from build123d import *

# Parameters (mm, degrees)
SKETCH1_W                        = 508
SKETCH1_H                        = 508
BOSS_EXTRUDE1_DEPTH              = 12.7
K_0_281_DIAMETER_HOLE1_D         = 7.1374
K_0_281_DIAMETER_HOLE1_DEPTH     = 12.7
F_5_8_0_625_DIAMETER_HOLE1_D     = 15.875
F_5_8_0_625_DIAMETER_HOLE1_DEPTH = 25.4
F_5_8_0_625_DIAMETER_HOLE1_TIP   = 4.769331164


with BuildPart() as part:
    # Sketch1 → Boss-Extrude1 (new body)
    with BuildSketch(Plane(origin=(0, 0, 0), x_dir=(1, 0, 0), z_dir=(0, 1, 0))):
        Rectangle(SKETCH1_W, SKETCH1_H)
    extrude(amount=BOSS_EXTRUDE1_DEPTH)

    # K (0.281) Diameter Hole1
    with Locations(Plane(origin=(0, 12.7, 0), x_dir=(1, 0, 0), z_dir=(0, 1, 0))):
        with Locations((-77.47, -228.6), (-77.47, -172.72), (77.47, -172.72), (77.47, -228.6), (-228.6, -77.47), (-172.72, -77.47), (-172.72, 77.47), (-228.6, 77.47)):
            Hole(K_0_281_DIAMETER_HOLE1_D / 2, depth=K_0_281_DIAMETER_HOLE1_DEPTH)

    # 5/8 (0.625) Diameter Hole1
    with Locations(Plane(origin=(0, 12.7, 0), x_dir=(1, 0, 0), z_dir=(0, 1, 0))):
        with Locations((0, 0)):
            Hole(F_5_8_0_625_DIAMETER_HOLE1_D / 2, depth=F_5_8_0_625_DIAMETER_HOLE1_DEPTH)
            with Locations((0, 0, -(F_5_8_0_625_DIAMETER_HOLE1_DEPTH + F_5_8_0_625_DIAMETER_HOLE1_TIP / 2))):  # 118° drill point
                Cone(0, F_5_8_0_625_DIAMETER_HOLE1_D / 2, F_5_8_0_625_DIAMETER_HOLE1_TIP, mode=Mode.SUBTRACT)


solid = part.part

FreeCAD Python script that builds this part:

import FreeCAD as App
import Part
import Sketcher
Q = App.Units.Quantity

doc = App.newDocument("Part")
body = doc.addObject("PartDesign::Body", "Body")

# Sketch on XZ plane
sketch1 = body.newObject("Sketcher::SketchObject", "Sketch")
sketch1.AttachmentSupport = (doc.getObject("XZ_Plane"), [""])
sketch1.MapMode = "FlatFace"
sketch1.addGeometry(Part.LineSegment(App.Vector(-254, -254, 0), App.Vector(-254, 254, 0)), False)
sketch1.addGeometry(Part.LineSegment(App.Vector(-254, 254, 0), App.Vector(254, 254, 0)), False)
sketch1.addGeometry(Part.LineSegment(App.Vector(254, 254, 0), App.Vector(254, -254, 0)), False)
sketch1.addGeometry(Part.LineSegment(App.Vector(254, -254, 0), App.Vector(-254, -254, 0)), False)
sketch1.addConstraint(Sketcher.Constraint("Coincident", 0, 2, 1, 1))
sketch1.addConstraint(Sketcher.Constraint("Coincident", 1, 2, 2, 1))
sketch1.addConstraint(Sketcher.Constraint("Coincident", 2, 2, 3, 1))
sketch1.addConstraint(Sketcher.Constraint("Coincident", 3, 2, 0, 1))
sketch1.addConstraint(Sketcher.Constraint("Vertical", 0))
sketch1.addConstraint(Sketcher.Constraint("Horizontal", 1))
sketch1.addConstraint(Sketcher.Constraint("Vertical", 2))
sketch1.addConstraint(Sketcher.Constraint("Horizontal", 3))
sketch1.addConstraint(Sketcher.Constraint("Symmetric", 0, 2, 2, 2, -1, 1))
sketch1.addConstraint(Sketcher.Constraint("Equal", 3, 0))
sketch1.addConstraint(Sketcher.Constraint("DistanceX", 1, 1, 1, 2, Q("20 in")))
pad1 = body.newObject("PartDesign::Pad", "Pad")
pad1.Profile = sketch1
pad1.Length = Q("0.5 in")
pad1.Reversed = True

# Sketch on XZ plane
sketch2 = body.newObject("Sketcher::SketchObject", "Sketch001")
sketch2.AttachmentSupport = (doc.getObject("XZ_Plane"), [""])
sketch2.MapMode = "FlatFace"
sketch2.AttachmentOffset = App.Placement(App.Vector(0, 0, -0.5 * 25.4), App.Rotation())
sketch2.addGeometry(Part.Circle(App.Vector(-77.5, 228.6, 0), App.Vector(0, 0, 1), 3.6), False)
sketch2.addGeometry(Part.Circle(App.Vector(-77.5, 172.7, 0), App.Vector(0, 0, 1), 3.6), False)
sketch2.addGeometry(Part.Circle(App.Vector(77.5, 172.7, 0), App.Vector(0, 0, 1), 3.6), False)
sketch2.addGeometry(Part.Circle(App.Vector(77.5, 228.6, 0), App.Vector(0, 0, 1), 3.6), False)
sketch2.addGeometry(Part.Circle(App.Vector(-228.6, 77.5, 0), App.Vector(0, 0, 1), 3.6), False)
sketch2.addGeometry(Part.Circle(App.Vector(-172.7, 77.5, 0), App.Vector(0, 0, 1), 3.6), False)
sketch2.addGeometry(Part.Circle(App.Vector(-172.7, -77.5, 0), App.Vector(0, 0, 1), 3.6), False)
sketch2.addGeometry(Part.Circle(App.Vector(-228.6, -77.5, 0), App.Vector(0, 0, 1), 3.6), False)
sketch2.addConstraint(Sketcher.Constraint("Equal", 0, 1))
sketch2.addConstraint(Sketcher.Constraint("Equal", 1, 2))
sketch2.addConstraint(Sketcher.Constraint("Equal", 2, 3))
sketch2.addConstraint(Sketcher.Constraint("Equal", 3, 4))
sketch2.addConstraint(Sketcher.Constraint("Equal", 4, 5))
sketch2.addConstraint(Sketcher.Constraint("Equal", 5, 6))
sketch2.addConstraint(Sketcher.Constraint("Equal", 6, 7))
sketch2.addConstraint(Sketcher.Constraint("Symmetric", 1, 3, 2, 3, -2))
sketch2.addConstraint(Sketcher.Constraint("Symmetric", 0, 3, 3, 3, -2))
sketch2.addConstraint(Sketcher.Constraint("Symmetric", 5, 3, 6, 3, -1))
sketch2.addConstraint(Sketcher.Constraint("Symmetric", 4, 3, 7, 3, -1))
sketch2.addConstraint(Sketcher.Constraint("Horizontal", 4, 3, 5, 3))
sketch2.addConstraint(Sketcher.Constraint("Vertical", 0, 3, 1, 3))
sketch2.addConstraint(Sketcher.Constraint("Diameter", 0, Q("0.281 in")))
sketch2.addConstraint(Sketcher.Constraint("DistanceY", -1, 1, 0, 3, Q("9 in")))
sketch2.addConstraint(Sketcher.Constraint("DistanceX", 4, 3, -1, 1, Q("9 in")))
sketch2.addConstraint(Sketcher.Constraint("DistanceY", -1, 1, 1, 3, Q("6.8 in")))
sketch2.addConstraint(Sketcher.Constraint("DistanceX", 5, 3, -1, 1, Q("6.8 in")))
sketch2.addConstraint(Sketcher.Constraint("DistanceX", 1, 3, 2, 3, Q("6.1 in")))
sketch2.addConstraint(Sketcher.Constraint("DistanceY", 6, 3, 5, 3, Q("6.1 in")))
doc.recompute()
hole = body.newObject("PartDesign::Hole", "Hole")
hole.Profile = sketch2
hole.ThreadType = "None"
hole.Diameter = Q("0.281 in")
hole.DepthType = "Dimension"
hole.Depth = Q("0.5 in")
hole.DrillPoint = "Flat"
hole.Reversed = True

# Sketch on XZ plane
sketch3 = body.newObject("Sketcher::SketchObject", "Sketch002")
sketch3.AttachmentSupport = (doc.getObject("XZ_Plane"), [""])
sketch3.MapMode = "FlatFace"
sketch3.AttachmentOffset = App.Placement(App.Vector(0, 0, -0.5 * 25.4), App.Rotation())
sketch3.addGeometry(Part.Circle(App.Vector(0, 0, 0), App.Vector(0, 0, 1), 8), False)
sketch3.addConstraint(Sketcher.Constraint("Coincident", 0, 3, -1, 1))
sketch3.addConstraint(Sketcher.Constraint("Diameter", 0, Q("0.625 in")))
doc.recompute()
hole2 = body.newObject("PartDesign::Hole", "Hole001")
hole2.Profile = sketch3
hole2.ThreadType = "None"
hole2.Diameter = Q("0.625 in")
hole2.DepthType = "Dimension"
hole2.Depth = Q("1 in")
hole2.DrillPoint = "Angled"
hole2.DrillPointAngle = 118
hole2.Reversed = True

doc.recompute()
